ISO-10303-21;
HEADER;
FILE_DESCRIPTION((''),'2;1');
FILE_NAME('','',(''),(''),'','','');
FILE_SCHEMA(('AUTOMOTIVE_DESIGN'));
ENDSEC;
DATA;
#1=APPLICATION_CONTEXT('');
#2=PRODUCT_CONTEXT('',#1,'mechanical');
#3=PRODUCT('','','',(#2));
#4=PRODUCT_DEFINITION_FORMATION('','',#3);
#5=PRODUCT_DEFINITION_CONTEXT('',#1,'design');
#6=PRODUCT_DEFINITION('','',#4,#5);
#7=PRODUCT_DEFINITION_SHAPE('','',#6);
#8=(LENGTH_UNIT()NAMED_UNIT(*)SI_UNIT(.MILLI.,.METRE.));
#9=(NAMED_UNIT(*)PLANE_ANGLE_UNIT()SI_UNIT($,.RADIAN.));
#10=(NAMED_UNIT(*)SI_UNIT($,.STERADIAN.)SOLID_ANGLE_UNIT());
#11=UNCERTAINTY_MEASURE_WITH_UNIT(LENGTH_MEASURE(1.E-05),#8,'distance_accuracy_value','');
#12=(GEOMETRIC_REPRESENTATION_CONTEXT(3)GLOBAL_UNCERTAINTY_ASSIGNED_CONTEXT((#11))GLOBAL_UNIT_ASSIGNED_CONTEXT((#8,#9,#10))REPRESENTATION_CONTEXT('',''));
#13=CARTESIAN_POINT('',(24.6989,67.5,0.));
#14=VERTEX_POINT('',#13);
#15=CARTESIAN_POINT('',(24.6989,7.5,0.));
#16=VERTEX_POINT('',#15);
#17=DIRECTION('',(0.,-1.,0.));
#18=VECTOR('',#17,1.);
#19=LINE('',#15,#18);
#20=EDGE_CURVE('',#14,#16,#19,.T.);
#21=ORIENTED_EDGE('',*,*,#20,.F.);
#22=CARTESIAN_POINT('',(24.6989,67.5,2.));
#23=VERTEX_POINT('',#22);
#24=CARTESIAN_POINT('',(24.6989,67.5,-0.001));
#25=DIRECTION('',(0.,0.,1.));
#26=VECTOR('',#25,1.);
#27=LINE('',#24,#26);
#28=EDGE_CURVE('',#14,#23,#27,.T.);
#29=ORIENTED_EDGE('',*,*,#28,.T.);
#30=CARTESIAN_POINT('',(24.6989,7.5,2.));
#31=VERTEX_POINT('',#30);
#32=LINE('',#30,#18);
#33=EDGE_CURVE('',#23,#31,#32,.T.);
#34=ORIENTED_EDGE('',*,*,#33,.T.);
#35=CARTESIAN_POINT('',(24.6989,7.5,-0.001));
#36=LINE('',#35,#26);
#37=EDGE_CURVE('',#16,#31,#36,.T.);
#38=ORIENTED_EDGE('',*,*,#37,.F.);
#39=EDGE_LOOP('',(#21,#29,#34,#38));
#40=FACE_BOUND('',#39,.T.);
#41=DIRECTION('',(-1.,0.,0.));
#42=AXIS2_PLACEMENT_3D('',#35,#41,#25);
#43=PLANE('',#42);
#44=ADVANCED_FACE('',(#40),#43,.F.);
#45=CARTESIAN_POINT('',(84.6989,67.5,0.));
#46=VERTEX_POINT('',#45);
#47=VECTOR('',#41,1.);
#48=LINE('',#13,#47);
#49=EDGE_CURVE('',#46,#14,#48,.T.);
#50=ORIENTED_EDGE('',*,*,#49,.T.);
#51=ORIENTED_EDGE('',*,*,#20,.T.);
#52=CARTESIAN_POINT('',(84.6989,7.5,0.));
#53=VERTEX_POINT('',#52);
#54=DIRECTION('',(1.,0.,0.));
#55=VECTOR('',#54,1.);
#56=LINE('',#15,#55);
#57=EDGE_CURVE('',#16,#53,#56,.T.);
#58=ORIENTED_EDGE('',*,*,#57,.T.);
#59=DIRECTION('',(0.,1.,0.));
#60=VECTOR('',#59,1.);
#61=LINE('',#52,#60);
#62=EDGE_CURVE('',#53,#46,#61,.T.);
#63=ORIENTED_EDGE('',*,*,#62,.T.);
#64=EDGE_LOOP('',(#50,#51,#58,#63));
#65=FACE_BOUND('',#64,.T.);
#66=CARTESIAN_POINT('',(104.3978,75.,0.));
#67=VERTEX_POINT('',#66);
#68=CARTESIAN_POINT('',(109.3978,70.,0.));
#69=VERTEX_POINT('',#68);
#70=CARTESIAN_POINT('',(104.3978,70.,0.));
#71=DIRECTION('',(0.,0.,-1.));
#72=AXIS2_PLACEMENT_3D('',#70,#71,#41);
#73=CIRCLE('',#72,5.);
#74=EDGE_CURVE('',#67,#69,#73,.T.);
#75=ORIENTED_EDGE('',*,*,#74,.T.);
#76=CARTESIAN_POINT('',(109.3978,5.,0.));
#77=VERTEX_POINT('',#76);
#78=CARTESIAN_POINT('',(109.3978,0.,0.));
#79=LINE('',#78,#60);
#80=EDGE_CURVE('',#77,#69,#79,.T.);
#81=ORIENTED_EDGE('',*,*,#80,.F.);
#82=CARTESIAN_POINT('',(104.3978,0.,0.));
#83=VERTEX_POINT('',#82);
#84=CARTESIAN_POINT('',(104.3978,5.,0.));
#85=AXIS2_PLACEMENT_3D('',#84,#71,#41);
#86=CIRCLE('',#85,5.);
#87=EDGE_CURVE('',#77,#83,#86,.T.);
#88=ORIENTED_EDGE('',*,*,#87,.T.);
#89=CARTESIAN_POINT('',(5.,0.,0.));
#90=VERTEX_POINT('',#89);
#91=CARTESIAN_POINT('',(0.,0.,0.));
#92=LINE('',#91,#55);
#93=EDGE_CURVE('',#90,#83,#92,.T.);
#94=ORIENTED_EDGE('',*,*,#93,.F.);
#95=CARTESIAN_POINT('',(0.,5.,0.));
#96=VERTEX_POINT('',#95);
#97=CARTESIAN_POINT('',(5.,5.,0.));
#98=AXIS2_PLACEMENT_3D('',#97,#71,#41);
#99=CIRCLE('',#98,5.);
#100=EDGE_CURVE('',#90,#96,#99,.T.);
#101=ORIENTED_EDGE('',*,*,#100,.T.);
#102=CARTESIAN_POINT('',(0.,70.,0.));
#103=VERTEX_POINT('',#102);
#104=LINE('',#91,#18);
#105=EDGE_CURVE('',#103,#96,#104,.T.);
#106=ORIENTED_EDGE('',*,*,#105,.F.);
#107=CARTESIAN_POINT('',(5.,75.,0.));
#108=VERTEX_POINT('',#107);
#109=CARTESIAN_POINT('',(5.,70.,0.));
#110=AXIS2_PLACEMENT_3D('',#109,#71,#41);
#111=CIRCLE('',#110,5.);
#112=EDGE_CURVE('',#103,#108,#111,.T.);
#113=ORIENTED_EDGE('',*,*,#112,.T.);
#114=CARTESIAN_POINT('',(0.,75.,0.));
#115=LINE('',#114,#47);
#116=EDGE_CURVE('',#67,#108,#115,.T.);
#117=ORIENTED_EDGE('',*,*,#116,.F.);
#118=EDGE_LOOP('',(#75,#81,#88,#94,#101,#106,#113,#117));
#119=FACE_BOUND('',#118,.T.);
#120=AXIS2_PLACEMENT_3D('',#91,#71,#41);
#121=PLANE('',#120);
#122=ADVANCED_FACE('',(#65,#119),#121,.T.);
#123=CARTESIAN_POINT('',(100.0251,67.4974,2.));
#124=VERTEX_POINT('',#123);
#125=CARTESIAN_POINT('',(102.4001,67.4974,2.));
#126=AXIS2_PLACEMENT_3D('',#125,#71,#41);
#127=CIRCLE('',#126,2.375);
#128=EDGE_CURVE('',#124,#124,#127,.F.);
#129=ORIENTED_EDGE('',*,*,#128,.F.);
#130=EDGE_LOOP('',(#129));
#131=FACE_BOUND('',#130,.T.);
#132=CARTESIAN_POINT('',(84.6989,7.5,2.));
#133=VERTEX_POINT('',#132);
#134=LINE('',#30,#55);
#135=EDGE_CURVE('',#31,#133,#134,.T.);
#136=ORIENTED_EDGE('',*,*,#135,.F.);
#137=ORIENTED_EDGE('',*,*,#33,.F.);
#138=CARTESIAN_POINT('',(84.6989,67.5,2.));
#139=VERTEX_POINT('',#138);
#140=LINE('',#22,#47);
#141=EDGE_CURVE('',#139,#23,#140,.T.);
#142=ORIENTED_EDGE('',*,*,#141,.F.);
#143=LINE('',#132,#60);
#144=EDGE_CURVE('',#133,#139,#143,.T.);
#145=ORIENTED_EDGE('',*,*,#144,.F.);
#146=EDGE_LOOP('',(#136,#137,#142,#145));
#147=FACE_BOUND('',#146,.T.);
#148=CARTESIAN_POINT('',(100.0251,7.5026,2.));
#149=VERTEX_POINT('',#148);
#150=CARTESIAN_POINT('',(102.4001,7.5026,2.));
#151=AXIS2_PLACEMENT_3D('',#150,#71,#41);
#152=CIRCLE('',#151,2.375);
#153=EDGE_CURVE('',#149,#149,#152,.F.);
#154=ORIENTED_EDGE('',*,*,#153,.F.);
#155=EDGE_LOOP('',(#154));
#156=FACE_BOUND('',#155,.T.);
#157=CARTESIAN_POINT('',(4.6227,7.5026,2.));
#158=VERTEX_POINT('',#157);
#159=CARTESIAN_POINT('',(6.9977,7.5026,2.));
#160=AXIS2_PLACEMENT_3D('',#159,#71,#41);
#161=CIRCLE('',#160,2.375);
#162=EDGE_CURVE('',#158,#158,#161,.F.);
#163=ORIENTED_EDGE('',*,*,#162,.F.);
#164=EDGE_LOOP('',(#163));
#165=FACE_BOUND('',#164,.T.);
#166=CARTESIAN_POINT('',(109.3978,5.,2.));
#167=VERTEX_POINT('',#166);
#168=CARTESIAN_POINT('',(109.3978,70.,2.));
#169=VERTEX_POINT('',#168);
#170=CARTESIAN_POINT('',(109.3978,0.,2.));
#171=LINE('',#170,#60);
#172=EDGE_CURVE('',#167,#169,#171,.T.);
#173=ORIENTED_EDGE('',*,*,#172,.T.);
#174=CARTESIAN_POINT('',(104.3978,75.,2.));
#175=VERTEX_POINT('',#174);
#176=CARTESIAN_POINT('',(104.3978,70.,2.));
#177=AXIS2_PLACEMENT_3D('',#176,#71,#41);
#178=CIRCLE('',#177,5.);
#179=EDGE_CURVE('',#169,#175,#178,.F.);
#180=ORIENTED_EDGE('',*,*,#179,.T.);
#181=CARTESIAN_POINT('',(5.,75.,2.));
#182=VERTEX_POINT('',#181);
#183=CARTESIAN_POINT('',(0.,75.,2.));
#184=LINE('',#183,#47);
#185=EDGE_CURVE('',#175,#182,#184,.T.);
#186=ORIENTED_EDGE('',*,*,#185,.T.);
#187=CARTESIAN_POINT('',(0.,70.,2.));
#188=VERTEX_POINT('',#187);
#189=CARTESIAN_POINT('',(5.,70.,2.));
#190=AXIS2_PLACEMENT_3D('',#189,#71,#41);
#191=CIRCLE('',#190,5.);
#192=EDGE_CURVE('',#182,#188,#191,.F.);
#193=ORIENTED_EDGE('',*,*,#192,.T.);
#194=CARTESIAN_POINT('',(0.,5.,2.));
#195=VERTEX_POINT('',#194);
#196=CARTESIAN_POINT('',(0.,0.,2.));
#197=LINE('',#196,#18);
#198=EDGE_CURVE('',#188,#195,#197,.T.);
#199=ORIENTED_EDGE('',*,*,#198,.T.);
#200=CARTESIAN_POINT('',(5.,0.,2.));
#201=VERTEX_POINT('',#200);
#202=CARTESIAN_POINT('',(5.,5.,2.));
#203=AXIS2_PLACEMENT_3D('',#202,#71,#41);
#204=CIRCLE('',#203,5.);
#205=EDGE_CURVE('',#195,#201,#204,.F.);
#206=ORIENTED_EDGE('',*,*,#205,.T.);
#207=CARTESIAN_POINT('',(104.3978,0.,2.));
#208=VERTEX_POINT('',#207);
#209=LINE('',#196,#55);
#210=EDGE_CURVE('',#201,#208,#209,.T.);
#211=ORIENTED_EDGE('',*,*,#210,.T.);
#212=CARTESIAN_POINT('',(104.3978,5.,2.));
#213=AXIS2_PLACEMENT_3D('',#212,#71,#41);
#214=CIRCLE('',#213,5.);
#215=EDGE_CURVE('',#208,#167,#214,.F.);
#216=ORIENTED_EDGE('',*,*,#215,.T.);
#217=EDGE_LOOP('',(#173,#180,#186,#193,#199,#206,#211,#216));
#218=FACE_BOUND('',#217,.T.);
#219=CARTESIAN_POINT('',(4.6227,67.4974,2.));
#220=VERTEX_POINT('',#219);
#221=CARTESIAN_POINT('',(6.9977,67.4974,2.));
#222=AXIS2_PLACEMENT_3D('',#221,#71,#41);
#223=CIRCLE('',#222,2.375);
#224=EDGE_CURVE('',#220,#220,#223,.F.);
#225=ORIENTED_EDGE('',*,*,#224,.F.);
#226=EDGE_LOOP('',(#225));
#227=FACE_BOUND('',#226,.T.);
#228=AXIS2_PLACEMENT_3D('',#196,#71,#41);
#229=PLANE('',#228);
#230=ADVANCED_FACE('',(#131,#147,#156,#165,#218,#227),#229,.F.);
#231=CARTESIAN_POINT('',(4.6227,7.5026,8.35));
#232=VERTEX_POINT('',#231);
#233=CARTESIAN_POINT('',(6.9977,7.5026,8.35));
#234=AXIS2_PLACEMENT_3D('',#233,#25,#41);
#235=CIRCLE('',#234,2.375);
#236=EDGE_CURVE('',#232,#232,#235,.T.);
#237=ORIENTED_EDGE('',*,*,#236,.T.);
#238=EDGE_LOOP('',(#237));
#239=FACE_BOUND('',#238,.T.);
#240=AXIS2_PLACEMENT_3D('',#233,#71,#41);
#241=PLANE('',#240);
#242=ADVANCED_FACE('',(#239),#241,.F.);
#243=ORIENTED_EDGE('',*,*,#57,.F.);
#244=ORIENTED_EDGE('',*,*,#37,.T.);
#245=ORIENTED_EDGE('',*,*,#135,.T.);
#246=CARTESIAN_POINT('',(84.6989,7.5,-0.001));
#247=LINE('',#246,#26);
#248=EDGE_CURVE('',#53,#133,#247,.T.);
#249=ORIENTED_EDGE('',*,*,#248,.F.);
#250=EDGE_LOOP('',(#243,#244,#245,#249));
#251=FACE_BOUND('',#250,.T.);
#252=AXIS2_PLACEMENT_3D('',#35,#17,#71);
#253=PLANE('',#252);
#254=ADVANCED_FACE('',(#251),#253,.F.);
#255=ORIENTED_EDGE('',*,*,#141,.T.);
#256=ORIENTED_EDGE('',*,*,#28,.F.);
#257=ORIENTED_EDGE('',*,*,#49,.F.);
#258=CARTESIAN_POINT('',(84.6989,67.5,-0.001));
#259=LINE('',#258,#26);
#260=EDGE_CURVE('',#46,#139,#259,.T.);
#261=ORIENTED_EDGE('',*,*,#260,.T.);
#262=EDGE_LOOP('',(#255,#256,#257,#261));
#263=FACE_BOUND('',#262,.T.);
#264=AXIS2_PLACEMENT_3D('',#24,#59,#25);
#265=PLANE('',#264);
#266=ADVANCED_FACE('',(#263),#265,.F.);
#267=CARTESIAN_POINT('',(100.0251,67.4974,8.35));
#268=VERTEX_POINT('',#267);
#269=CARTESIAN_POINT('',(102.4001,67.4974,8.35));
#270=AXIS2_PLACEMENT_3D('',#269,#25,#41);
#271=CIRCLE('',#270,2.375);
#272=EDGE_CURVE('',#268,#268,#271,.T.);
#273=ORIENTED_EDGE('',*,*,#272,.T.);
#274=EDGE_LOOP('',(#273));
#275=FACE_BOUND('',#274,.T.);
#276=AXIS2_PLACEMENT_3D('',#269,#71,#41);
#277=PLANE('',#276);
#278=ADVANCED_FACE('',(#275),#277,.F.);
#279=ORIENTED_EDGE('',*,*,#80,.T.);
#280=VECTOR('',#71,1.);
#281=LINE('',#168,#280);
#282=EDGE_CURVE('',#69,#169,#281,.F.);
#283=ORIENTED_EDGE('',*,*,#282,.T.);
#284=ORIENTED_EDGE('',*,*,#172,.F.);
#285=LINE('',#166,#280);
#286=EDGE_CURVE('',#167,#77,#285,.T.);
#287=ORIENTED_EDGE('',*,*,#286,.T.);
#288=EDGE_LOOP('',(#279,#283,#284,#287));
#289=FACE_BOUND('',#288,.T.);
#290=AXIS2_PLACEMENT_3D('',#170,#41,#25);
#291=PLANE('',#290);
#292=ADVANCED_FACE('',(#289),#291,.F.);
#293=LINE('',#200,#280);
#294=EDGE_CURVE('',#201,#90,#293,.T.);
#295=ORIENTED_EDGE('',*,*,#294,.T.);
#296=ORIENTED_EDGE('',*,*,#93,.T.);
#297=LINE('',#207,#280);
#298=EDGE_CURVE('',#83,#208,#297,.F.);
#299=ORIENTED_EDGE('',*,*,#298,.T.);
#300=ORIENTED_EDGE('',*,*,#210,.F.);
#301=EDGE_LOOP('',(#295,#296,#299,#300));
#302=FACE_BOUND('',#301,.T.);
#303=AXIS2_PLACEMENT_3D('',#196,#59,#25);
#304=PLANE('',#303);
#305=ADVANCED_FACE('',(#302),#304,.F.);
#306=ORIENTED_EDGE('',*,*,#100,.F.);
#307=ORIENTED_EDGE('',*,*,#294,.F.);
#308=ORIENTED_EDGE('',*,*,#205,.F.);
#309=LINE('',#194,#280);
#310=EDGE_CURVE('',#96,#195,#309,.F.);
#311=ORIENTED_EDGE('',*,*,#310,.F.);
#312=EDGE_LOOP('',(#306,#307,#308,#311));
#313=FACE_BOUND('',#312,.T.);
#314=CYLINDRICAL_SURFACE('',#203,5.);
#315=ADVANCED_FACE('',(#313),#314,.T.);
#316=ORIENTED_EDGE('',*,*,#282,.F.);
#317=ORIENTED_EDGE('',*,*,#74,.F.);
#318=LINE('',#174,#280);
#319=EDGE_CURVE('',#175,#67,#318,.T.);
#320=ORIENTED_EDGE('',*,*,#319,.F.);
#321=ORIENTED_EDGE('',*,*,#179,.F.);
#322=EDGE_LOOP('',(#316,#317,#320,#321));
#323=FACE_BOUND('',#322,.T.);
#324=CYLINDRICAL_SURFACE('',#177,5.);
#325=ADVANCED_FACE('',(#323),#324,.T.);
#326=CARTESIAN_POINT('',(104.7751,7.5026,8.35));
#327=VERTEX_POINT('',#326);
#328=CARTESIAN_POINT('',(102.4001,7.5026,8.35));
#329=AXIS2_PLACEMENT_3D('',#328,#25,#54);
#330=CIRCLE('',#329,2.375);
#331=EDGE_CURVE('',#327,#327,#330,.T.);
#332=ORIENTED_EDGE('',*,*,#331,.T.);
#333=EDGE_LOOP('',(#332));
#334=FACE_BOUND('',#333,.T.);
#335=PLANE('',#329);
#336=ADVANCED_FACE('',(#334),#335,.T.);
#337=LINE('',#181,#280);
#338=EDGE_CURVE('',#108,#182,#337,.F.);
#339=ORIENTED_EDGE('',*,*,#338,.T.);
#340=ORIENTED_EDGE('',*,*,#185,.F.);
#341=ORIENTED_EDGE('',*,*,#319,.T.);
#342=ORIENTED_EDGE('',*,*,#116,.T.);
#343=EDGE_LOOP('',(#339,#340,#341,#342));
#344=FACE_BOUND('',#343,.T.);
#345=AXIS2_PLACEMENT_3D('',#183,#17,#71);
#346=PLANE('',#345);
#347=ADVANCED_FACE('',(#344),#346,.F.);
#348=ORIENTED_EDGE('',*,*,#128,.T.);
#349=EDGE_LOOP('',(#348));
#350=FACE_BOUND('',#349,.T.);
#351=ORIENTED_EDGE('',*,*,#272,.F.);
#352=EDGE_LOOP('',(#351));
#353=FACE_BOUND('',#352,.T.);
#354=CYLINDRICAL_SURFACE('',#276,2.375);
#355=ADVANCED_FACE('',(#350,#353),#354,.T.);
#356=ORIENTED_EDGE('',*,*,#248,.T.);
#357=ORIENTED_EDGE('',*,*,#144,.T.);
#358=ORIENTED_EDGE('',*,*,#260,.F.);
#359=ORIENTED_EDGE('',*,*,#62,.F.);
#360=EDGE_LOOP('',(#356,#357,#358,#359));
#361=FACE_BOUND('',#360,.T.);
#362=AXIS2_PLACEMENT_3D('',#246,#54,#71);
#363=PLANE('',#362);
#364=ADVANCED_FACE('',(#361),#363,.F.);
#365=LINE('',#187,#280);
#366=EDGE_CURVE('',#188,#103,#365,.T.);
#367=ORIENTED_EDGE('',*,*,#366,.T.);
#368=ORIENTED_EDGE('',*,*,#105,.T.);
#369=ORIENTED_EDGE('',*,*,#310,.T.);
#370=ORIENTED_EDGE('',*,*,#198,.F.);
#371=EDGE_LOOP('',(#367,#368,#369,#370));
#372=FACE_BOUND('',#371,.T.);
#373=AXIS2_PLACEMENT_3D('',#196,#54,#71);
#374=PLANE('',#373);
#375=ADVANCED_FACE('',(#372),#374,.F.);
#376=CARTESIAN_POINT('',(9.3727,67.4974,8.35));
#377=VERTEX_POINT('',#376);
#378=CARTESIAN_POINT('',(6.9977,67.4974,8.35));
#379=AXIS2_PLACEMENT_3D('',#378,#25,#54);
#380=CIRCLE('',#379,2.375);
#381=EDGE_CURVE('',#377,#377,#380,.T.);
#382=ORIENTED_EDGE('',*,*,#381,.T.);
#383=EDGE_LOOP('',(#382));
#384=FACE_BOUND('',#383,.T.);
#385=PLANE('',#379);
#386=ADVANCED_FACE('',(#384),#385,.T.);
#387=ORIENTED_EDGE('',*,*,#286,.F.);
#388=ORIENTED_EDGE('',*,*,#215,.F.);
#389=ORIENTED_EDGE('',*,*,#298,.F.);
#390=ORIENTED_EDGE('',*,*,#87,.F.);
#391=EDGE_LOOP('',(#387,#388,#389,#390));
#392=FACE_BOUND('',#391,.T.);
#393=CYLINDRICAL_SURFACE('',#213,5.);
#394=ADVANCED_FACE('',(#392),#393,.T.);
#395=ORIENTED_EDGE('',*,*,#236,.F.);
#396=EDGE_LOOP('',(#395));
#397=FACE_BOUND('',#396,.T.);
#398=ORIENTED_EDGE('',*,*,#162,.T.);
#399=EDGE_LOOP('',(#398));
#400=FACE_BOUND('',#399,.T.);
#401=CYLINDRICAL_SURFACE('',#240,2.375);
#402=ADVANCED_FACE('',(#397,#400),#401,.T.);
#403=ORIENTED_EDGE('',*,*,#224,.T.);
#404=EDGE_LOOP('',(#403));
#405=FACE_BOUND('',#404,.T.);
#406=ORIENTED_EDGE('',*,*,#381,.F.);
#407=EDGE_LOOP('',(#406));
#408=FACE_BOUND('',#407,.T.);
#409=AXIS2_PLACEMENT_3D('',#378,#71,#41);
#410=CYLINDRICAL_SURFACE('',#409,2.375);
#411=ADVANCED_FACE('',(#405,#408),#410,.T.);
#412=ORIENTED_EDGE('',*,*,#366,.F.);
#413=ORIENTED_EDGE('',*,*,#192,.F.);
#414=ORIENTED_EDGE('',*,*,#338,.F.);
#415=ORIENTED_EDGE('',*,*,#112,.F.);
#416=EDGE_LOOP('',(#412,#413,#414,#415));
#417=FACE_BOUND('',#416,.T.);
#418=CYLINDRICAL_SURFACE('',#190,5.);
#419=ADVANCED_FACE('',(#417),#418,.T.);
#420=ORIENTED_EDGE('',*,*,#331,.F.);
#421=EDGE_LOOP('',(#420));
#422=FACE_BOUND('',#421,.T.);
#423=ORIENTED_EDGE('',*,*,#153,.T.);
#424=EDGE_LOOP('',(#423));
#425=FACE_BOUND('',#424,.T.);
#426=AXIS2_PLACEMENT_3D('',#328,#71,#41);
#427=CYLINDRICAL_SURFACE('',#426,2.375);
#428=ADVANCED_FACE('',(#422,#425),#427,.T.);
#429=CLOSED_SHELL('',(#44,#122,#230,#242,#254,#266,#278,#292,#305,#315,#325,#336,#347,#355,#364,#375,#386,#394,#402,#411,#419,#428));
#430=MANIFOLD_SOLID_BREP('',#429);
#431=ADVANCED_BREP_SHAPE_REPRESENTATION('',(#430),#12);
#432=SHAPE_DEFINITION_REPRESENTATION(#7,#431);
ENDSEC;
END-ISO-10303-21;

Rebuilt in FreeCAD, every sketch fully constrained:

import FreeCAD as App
import Part
import Sketcher
from FreeCAD import Vector


def edges_at(feature, points):
    """Names of the edges that pass closest to the given points."""
    edges = feature.Shape.Edges
    near = lambda p: min(range(len(edges)), key=lambda i: edges[i].distToShape(Part.Vertex(*p))[0])
    return sorted({f"Edge{near(p) + 1}" for p in points})


def add_polygon(sketch, points):
    """Adds a closed chain of lines whose ends are joined by coincident constraints."""
    first, n = sketch.GeometryCount, len(points)
    for a, b in zip(points, points[1:] + points[:1]):
        sketch.addGeometry(Part.LineSegment(App.Vector(*a, 0), App.Vector(*b, 0)), False)
    for i in range(n):
        sketch.addConstraint(Sketcher.Constraint("Coincident", first + i, 2, first + (i + 1) % n, 1))

doc = App.newDocument("Part")
body = doc.addObject("PartDesign::Body", "Body")

sketch1 = body.newObject("Sketcher::SketchObject", "Sketch")
sketch1.AttachmentSupport = (doc.getObject("XY_Plane"), [""])
sketch1.MapMode = "FlatFace"
add_polygon(sketch1, [(0, 75), (0, 0), (109, 0), (109, 75)])
sketch1.addConstraint([
    Sketcher.Constraint("Vertical", 0),
    Sketcher.Constraint("Horizontal", 1),
    Sketcher.Constraint("Vertical", 2),
    Sketcher.Constraint("Horizontal", 3),
    Sketcher.Constraint("Coincident", 0, 2, -1, 1),
    Sketcher.Constraint("DistanceY", 0, 2, 0, 1, 75.0),
    Sketcher.Constraint("DistanceX", 1, 1, 1, 2, 109.3978),
])
pad1 = body.newObject("PartDesign::Pad", "Pad")
pad1.Profile = sketch1
pad1.Length = 2

sketch2 = body.newObject("Sketcher::SketchObject", "Sketch001")
sketch2.AttachmentSupport = (doc.getObject("XY_Plane"), [""])
sketch2.MapMode = "FlatFace"
sketch2.AttachmentOffset = App.Placement(Vector(0, 0, 2), App.Rotation())
sketch2.addGeometry([
    Part.Circle(Vector(7, 67.5, 0), Vector(0, 0, 1), 2.4),
    Part.Circle(Vector(102.4, 67.5, 0), Vector(0, 0, 1), 2.4),
    Part.Circle(Vector(102.4, 7.5, 0), Vector(0, 0, 1), 2.4),
    Part.Circle(Vector(7, 7.5, 0), Vector(0, 0, 1), 2.4),
], False)
sketch2.addConstraint([
    Sketcher.Constraint("Equal", 0, 1),
    Sketcher.Constraint("Equal", 1, 2),
    Sketcher.Constraint("Equal", 2, 3),
    Sketcher.Constraint("Horizontal", 0, 3, 1, 3),
    Sketcher.Constraint("Horizontal", 2, 3, 3, 3),
    Sketcher.Constraint("Vertical", 1, 3, 2, 3),
    Sketcher.Constraint("Vertical", 0, 3, 3, 3),
    Sketcher.Constraint("Diameter", 0, 4.75),
    Sketcher.Constraint("DistanceX", -1, 1, 0, 3, 6.9977),
    Sketcher.Constraint("DistanceY", -1, 1, 0, 3, 67.4974),
    Sketcher.Constraint("DistanceX", -1, 1, 1, 3, 102.4001),
    Sketcher.Constraint("DistanceY", -1, 1, 2, 3, 7.5026),
])
pad2 = body.newObject("PartDesign::Pad", "Pad001")
pad2.Profile = sketch2
pad2.Length = 6.35

sketch3 = body.newObject("Sketcher::SketchObject", "Sketch002")
sketch3.AttachmentSupport = (doc.getObject("XY_Plane"), [""])
sketch3.MapMode = "FlatFace"
sketch3.AttachmentOffset = App.Placement(Vector(0, 0, 2), App.Rotation())
add_polygon(sketch3, [(25, 68), (25, 8), (85, 8), (85, 68)])
sketch3.addConstraint([
    Sketcher.Constraint("Vertical", 0),
    Sketcher.Constraint("Horizontal", 1),
    Sketcher.Constraint("Vertical", 2),
    Sketcher.Constraint("Horizontal", 3),
    Sketcher.Constraint("Equal", 3, 0),
    Sketcher.Constraint("DistanceX", 1, 1, 1, 2, 60.0),
    Sketcher.Constraint("DistanceY", -1, 1, 0, 2, 7.5),
    Sketcher.Constraint("DistanceX", -1, 1, 0, 2, 24.6989),
])
pocket1 = body.newObject("PartDesign::Pocket", "Pocket")
pocket1.Profile = sketch3
pocket1.Type = "UpToFirst"
doc.recompute()

fillet = body.newObject("PartDesign::Fillet", "Fillet")
fillet.Base = (pocket1, edges_at(pocket1, [
    (0, 75, 1),
    (109.398, 75, 1),
    (109.398, 0, 1),
    (0, 0, 1),
]))
fillet.Radius = 5

doc.recompute()
